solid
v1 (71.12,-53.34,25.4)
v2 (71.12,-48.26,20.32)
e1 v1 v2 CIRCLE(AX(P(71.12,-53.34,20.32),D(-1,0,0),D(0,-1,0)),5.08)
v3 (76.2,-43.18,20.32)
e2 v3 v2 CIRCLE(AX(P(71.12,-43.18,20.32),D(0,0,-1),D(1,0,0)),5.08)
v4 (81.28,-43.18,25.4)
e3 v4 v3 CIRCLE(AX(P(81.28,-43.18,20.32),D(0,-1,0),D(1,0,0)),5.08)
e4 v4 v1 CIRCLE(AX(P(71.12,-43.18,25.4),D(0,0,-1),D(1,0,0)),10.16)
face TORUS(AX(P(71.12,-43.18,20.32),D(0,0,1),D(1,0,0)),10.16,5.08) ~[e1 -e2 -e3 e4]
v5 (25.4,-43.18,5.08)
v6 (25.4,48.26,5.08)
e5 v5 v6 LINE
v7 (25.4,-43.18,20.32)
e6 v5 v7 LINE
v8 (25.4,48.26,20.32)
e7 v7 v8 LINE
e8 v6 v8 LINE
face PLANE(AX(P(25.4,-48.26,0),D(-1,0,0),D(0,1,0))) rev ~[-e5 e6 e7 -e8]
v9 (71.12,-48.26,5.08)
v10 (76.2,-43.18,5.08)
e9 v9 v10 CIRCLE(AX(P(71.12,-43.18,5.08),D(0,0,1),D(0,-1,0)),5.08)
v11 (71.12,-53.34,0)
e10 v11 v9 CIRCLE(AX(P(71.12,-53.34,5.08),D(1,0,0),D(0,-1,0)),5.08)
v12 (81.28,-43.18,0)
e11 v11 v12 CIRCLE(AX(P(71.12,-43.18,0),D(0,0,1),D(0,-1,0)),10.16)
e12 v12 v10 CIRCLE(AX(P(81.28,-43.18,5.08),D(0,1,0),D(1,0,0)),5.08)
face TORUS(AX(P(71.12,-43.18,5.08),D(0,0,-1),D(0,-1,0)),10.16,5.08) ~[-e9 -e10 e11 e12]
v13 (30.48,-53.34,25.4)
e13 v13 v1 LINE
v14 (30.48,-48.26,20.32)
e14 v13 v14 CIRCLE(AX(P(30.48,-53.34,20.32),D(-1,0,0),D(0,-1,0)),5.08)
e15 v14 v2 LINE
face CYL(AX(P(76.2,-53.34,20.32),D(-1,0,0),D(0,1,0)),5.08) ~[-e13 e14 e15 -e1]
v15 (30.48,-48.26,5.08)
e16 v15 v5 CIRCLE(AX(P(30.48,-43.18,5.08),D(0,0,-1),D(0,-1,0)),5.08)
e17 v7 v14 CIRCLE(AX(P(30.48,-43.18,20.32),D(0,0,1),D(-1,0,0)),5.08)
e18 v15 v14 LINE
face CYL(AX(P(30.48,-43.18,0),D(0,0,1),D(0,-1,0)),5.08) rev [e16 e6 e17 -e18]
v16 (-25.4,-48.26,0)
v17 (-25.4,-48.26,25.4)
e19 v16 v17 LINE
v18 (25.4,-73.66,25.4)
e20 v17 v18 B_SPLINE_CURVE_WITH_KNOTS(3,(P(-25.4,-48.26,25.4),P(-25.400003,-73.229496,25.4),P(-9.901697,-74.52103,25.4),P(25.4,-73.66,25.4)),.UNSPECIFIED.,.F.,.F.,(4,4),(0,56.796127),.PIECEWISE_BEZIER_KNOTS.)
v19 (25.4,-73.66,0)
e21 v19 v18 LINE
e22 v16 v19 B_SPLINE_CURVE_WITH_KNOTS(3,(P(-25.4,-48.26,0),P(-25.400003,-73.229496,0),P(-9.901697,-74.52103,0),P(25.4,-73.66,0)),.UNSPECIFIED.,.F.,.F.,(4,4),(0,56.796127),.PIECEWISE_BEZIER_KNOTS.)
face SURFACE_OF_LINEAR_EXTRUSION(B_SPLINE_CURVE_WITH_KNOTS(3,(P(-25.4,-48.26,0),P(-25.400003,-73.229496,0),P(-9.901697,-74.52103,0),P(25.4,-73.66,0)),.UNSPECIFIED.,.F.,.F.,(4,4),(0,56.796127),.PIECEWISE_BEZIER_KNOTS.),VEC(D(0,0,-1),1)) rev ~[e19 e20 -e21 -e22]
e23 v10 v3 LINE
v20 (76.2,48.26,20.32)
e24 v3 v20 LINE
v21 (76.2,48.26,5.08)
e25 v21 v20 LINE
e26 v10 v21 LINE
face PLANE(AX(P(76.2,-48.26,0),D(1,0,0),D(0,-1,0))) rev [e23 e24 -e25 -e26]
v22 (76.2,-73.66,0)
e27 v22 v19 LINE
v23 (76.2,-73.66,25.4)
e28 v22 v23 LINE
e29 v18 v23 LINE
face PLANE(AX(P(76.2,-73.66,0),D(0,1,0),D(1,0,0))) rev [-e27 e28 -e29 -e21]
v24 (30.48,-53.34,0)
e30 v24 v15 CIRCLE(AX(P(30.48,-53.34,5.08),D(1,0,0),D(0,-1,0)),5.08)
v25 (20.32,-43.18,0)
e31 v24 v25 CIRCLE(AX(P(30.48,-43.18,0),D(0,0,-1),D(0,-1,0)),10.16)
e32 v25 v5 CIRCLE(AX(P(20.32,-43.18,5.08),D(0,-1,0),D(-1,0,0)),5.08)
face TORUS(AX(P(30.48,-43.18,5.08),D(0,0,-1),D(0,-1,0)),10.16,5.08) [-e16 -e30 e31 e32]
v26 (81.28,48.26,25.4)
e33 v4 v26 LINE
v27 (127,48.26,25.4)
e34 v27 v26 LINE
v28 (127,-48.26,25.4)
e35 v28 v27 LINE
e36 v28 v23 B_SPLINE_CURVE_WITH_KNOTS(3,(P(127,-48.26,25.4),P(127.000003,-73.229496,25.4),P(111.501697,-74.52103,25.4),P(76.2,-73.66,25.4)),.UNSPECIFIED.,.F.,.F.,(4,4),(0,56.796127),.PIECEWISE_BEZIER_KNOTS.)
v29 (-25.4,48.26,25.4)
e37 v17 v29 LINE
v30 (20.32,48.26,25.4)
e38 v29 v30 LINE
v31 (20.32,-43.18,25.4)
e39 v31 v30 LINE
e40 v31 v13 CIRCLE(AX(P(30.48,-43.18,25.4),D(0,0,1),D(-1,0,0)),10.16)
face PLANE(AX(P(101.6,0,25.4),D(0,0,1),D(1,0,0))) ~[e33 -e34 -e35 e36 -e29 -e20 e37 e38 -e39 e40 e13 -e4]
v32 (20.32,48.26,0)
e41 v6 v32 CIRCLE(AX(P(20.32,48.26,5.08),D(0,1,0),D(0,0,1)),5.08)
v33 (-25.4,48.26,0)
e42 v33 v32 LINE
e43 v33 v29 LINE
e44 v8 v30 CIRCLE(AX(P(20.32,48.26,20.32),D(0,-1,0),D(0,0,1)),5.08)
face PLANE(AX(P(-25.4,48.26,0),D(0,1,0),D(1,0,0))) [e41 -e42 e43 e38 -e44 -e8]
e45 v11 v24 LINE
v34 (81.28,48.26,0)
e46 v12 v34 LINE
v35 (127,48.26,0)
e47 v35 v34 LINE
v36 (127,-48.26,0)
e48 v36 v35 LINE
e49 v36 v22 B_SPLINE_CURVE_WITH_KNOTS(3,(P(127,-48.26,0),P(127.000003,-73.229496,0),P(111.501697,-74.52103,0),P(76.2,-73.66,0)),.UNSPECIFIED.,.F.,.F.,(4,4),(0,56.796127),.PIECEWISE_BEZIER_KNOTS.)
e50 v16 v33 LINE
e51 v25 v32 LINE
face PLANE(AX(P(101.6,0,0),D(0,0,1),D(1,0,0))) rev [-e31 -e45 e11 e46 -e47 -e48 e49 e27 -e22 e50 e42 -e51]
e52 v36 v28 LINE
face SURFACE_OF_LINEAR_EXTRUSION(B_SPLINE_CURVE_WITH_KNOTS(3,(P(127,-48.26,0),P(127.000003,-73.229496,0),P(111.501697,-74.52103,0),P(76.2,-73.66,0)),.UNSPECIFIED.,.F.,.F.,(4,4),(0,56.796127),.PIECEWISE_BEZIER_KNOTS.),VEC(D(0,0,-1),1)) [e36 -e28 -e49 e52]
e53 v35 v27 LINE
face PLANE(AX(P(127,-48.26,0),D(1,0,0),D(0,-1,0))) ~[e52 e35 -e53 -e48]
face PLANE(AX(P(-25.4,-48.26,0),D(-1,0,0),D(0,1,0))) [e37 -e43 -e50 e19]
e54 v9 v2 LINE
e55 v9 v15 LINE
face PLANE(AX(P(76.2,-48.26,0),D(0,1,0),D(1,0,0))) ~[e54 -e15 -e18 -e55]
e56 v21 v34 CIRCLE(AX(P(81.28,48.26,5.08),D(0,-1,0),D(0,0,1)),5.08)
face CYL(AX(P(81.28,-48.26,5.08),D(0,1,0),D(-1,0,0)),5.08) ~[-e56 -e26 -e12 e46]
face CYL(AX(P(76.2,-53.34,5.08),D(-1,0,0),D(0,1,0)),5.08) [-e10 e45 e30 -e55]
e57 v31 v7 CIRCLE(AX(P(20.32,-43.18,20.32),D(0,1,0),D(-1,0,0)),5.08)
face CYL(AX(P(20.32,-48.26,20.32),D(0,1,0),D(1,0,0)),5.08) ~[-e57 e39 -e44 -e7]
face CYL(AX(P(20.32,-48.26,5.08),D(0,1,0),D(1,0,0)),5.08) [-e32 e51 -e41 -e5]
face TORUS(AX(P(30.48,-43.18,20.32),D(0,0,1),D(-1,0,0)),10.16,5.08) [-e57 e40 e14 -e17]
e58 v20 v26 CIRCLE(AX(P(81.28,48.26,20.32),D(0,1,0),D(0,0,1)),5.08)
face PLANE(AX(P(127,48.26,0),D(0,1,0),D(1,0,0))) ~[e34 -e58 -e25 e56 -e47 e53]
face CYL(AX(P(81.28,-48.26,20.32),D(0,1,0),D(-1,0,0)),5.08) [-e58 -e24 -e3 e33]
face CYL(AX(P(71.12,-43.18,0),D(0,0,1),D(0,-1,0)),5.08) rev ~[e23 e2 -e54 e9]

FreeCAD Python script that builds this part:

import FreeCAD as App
import Part
import Sketcher
from FreeCAD import Vector
Q = App.Units.Quantity


def edges_at(feature, points):
    """Names of the edges that pass closest to the given points."""
    edges = feature.Shape.Edges
    near = lambda p: min(range(len(edges)), key=lambda i: edges[i].distToShape(Part.Vertex(*p))[0])
    return sorted({f"Edge{near(p) + 1}" for p in points})

doc = App.newDocument("Part")
body = doc.addObject("PartDesign::Body", "Body")

# Sketch on XY plane
sketch1 = body.newObject("Sketcher::SketchObject", "Sketch")
sketch1.AttachmentSupport = (doc.getObject("XY_Plane"), [""])
sketch1.MapMode = "FlatFace"
sketch1.addGeometry([
    Part.LineSegment(Vector(-25.4, 48.26, 0), Vector(-25.4, -48.26, 0)),  # 0
    Part.BSplineCurve([Vector(-25.4, -48.26, 0), Vector(-25.400003, -73.229496, 0), Vector(-9.901697, -74.52103, 0), Vector(25.4, -73.66, 0)], [4, 4], [0, 56.796127], False, 3, [1, 1, 1, 1], False),  # 1
    Part.LineSegment(Vector(25.4, -73.66, 0), Vector(50.8, -73.66, 0)),  # 2
    Part.LineSegment(Vector(50.8, -73.66, 0), Vector(50.8, -48.26, 0)),  # 3
    Part.LineSegment(Vector(50.8, -48.26, 0), Vector(25.4, -48.26, 0)),  # 4
    Part.LineSegment(Vector(25.4, -48.26, 0), Vector(25.4, 48.26, 0)),  # 5
    Part.LineSegment(Vector(25.4, 48.26, 0), Vector(-25.4, 48.26, 0)),  # 6
], False)
sketch1.addConstraint([
    Sketcher.Constraint("Block", 1),
    Sketcher.Constraint("Coincident", 0, 2, 1, 1),
    Sketcher.Constraint("Coincident", 1, 2, 2, 1),
    Sketcher.Constraint("Coincident", 2, 2, 3, 1),
    Sketcher.Constraint("Coincident", 3, 2, 4, 1),
    Sketcher.Constraint("Coincident", 4, 2, 5, 1),
    Sketcher.Constraint("Coincident", 5, 2, 6, 1),
    Sketcher.Constraint("Coincident", 6, 2, 0, 1),
    Sketcher.Constraint("Vertical", 0),
    Sketcher.Constraint("Horizontal", 2),
    Sketcher.Constraint("Vertical", 3),
    Sketcher.Constraint("Horizontal", 4),
    Sketcher.Constraint("Vertical", 5),
    Sketcher.Constraint("Horizontal", 6),
    Sketcher.Constraint("Symmetric", 0, 2, 5, 2, -1, 1),
    Sketcher.Constraint("Horizontal", 0, 2, 3, 2),
    Sketcher.Constraint("Equal", 4, 3),
])
pad1 = body.newObject("PartDesign::Pad", "Pad")
pad1.Profile = sketch1
pad1.Length = Q("1 in")
doc.recompute()

fillet = body.newObject("PartDesign::Fillet", "Fillet")
fillet.Base = (pad1, edges_at(pad1, [
    (25.4, 0, 25.4),
    (38.1, -48.26, 25.4),
    (38.1, -48.26, 0),
    (25.4, 0, 0),
    (25.4, -48.26, 12.7),
]))
fillet.Radius = Q("0.2 in")
body2 = doc.addObject("PartDesign::Body", "Body001")
doc.recompute()

body2.BaseFeature = body
doc.recompute()

mirroring = doc.addObject("Part::Mirroring", "Mirroring")
mirroring.Source = body
mirroring.Base = Vector(50.8, -61.162023, 12.7)
mirroring.Normal = Vector(1, 0, 0)
body3 = doc.addObject("PartDesign::Body", "Body002")
body3.BaseFeature = mirroring
boolean = body2.newObject("PartDesign::Boolean", "Boolean")
boolean.Type = "Fuse"
boolean.addObjects([body3])
doc.recompute()
mirroring.Visibility = False

doc.recompute()
